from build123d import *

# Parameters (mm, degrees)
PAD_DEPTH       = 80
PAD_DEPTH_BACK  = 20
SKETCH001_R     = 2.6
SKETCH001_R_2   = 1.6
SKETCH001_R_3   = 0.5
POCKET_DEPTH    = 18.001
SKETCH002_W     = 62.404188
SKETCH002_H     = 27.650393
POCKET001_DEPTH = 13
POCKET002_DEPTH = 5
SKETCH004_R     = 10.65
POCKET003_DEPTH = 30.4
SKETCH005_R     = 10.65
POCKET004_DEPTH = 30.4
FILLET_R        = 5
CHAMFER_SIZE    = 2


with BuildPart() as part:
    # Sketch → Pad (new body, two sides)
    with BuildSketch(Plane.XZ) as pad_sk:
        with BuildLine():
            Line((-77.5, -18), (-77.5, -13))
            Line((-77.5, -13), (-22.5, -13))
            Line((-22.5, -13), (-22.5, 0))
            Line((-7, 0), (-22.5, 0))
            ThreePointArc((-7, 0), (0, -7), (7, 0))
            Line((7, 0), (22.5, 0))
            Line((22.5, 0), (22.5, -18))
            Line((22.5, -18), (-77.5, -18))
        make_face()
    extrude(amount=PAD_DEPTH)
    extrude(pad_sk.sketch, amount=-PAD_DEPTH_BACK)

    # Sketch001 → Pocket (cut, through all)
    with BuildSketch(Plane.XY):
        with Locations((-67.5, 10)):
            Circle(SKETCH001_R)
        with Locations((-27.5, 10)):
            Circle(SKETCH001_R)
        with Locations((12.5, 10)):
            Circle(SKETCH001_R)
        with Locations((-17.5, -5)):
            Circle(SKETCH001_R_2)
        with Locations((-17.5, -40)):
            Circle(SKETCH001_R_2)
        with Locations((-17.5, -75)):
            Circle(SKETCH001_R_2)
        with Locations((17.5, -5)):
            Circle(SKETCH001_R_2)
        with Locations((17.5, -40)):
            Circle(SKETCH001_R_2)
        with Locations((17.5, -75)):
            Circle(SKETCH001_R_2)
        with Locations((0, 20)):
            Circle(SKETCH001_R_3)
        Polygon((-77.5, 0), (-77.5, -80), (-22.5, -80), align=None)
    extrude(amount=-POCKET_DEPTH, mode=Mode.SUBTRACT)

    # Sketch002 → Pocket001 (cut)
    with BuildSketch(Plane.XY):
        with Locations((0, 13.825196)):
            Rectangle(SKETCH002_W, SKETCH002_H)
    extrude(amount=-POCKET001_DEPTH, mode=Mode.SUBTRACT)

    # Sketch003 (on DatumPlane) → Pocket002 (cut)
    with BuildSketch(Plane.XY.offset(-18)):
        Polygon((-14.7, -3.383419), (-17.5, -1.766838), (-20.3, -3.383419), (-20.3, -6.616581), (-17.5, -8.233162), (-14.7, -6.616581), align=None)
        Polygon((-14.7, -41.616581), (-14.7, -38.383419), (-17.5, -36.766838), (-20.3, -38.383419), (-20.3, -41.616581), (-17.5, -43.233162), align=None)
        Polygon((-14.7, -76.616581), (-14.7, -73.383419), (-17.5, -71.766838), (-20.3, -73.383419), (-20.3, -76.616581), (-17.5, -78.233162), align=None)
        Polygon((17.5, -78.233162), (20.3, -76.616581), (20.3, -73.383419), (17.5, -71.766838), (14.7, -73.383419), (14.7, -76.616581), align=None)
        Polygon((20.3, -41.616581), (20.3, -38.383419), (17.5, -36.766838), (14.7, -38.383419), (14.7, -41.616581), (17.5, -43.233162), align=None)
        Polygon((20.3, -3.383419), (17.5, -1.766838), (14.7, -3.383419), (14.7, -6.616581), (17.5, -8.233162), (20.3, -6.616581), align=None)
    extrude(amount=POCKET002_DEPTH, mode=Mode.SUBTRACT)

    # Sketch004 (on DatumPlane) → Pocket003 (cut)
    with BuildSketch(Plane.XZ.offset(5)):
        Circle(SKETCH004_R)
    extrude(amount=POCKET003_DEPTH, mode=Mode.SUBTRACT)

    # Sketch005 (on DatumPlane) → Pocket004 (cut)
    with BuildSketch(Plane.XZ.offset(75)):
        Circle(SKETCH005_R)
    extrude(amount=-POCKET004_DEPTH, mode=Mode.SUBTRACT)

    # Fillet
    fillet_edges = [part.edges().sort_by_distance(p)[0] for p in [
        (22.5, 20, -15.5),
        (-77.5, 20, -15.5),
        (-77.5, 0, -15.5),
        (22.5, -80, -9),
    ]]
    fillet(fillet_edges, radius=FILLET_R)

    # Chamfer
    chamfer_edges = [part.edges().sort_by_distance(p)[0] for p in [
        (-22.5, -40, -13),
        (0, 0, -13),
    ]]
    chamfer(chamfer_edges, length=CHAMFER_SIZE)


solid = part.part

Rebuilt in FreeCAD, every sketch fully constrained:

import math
import FreeCAD as App
import Part
import Sketcher
Q = App.Units.Quantity


def edges_at(feature, points):
    """Names of the edges that pass closest to the given points."""
    edges = feature.Shape.Edges
    near = lambda p: min(range(len(edges)), key=lambda i: edges[i].distToShape(Part.Vertex(*p))[0])
    return sorted({f"Edge{near(p) + 1}" for p in points})


def add_polygon(sketch, points):
    """Adds a closed chain of lines whose ends are joined by coincident constraints."""
    first, n = sketch.GeometryCount, len(points)
    for a, b in zip(points, points[1:] + points[:1]):
        sketch.addGeometry(Part.LineSegment(App.Vector(*a, 0), App.Vector(*b, 0)), False)
    for i in range(n):
        sketch.addConstraint(Sketcher.Constraint("Coincident", first + i, 2, first + (i + 1) % n, 1))

doc = App.newDocument("Part")
body = doc.addObject("PartDesign::Body", "Body")

sketch1 = doc.addObject("Sketcher::SketchObject", "Sketch")
body.addObject(sketch1)
sketch1.AttachmentSupport = (doc.XZ_Plane, [""])
sketch1.MapMode = "FlatFace"
sketch1.addGeometry([
    Part.LineSegment(App.Vector(-78, -13, 0), App.Vector(-78, -18, 0)),
    Part.LineSegment(App.Vector(-78, -18, 0), App.Vector(22, -18, 0)),
    Part.LineSegment(App.Vector(22, -18, 0), App.Vector(22, 0, 0)),
    Part.LineSegment(App.Vector(22, 0, 0), App.Vector(7, 0, 0)),
    Part.ArcOfCircle(Part.Circle(App.Vector(0, 0, 0), App.Vector(0, 0, 1), 7), math.radians(180), math.radians(360)),
    Part.LineSegment(App.Vector(-7, 0, 0), App.Vector(-22, 0, 0)),
    Part.LineSegment(App.Vector(-22, 0, 0), App.Vector(-22, -13, 0)),
    Part.LineSegment(App.Vector(-22, -13, 0), App.Vector(-78, -13, 0)),
], False)
sketch1.addConstraint([
    Sketcher.Constraint("Coincident", 0, 2, 1, 1),
    Sketcher.Constraint("Coincident", 1, 2, 2, 1),
    Sketcher.Constraint("Coincident", 2, 2, 3, 1),
    Sketcher.Constraint("Coincident", 3, 2, 4, 2),
    Sketcher.Constraint("Coincident", 4, 1, 5, 1),
    Sketcher.Constraint("Coincident", 5, 2, 6, 1),
    Sketcher.Constraint("Coincident", 6, 2, 7, 1),
    Sketcher.Constraint("Coincident", 7, 2, 0, 1),
    Sketcher.Constraint("Vertical", 0),
    Sketcher.Constraint("Horizontal", 1),
    Sketcher.Constraint("Vertical", 2),
    Sketcher.Constraint("Horizontal", 3),
    Sketcher.Constraint("Horizontal", 5),
    Sketcher.Constraint("Vertical", 6),
    Sketcher.Constraint("Horizontal", 7),
    Sketcher.Constraint("Coincident", 4, 3, -1, 1),
    Sketcher.Constraint("Symmetric", 2, 2, 5, 2, -1, 1),
    Sketcher.Constraint("PointOnObject", 2, 2, -1),
    Sketcher.Constraint("Radius", 4, 7.0),
    Sketcher.Constraint("DistanceX", 1, 1, 1, 2, 100.0),
    Sketcher.Constraint("DistanceX", 7, 2, 7, 1, 55.0),
    Sketcher.Constraint("DistanceY", 0, 2, 0, 1, 5.0),
    Sketcher.Constraint("DistanceY", 2, 1, 2, 2, 18.0),
])
pad1 = doc.addObject("PartDesign::Pad", "Pad")
body.addObject(pad1)
pad1.Profile = sketch1
pad1.Type = "TwoLengths"
pad1.Length = 80
pad1.Length2 = 20

sketch2 = doc.addObject("Sketcher::SketchObject", "Sketch001")
body.addObject(sketch2)
sketch2.AttachmentSupport = (doc.XY_Plane, [""])
sketch2.MapMode = "FlatFace"
sketch2.addGeometry(Part.Circle(App.Vector(-67.5, 10, 0), App.Vector(0, 0, 1), 2.6), False)
sketch2.addGeometry(Part.Circle(App.Vector(-27.5, 10, 0), App.Vector(0, 0, 1), 2.6), False)
sketch2.addGeometry(Part.Circle(App.Vector(12.5, 10, 0), App.Vector(0, 0, 1), 2.6), False)
sketch2.addGeometry(Part.Circle(App.Vector(-17.5, -5, 0), App.Vector(0, 0, 1), 1.6), False)
sketch2.addGeometry(Part.Circle(App.Vector(-17.5, -40, 0), App.Vector(0, 0, 1), 1.6), False)
sketch2.addGeometry(Part.Circle(App.Vector(-17.5, -75, 0), App.Vector(0, 0, 1), 1.6), False)
sketch2.addGeometry(Part.Circle(App.Vector(17.5, -5, 0), App.Vector(0, 0, 1), 1.6), False)
sketch2.addGeometry(Part.Circle(App.Vector(17.5, -40, 0), App.Vector(0, 0, 1), 1.6), False)
sketch2.addGeometry(Part.Circle(App.Vector(17.5, -75, 0), App.Vector(0, 0, 1), 1.6), False)
sketch2.addGeometry(Part.Circle(App.Vector(0, 20, 0), App.Vector(0, 0, 1), 0.5), False)
add_polygon(sketch2, [(-77.5, 0), (-77.5, -80), (-22.5, -80)])
sketch2.addConstraint([
    Sketcher.Constraint("Vertical", 10),
    Sketcher.Constraint("Horizontal", 11),
    Sketcher.Constraint("Equal", 0, 1),
    Sketcher.Constraint("Equal", 1, 2),
    Sketcher.Constraint("Equal", 3, 4),
    Sketcher.Constraint("Equal", 4, 5),
    Sketcher.Constraint("Equal", 5, 6),
    Sketcher.Constraint("Equal", 6, 7),
    Sketcher.Constraint("Equal", 7, 8),
    Sketcher.Constraint("Symmetric", 3, 3, 6, 3, -2),
    Sketcher.Constraint("Symmetric", 4, 3, 7, 3, -2),
    Sketcher.Constraint("Symmetric", 5, 3, 8, 3, -2),
    Sketcher.Constraint("PointOnObject", 9, 3, -2),
    Sketcher.Constraint("PointOnObject", 12, 2, -1),
    Sketcher.Constraint("Horizontal", 0, 3, 1, 3),
    Sketcher.Constraint("Horizontal", 1, 3, 2, 3),
    Sketcher.Constraint("Vertical", 3, 3, 4, 3),
    Sketcher.Constraint("Vertical", 4, 3, 5, 3),
    Sketcher.Constraint("Diameter", 9, 1.0),
    Sketcher.Constraint("Diameter", 0, 5.2),
    Sketcher.Constraint("Diameter", 3, 3.2),
    Sketcher.Constraint("DistanceX", 11, 1, 11, 2, 55.0),
    Sketcher.Constraint("DistanceY", 10, 2, 10, 1, 80.0),
    Sketcher.Constraint("DistanceY", -1, 1, 0, 3, 10.0),
    Sketcher.Constraint("DistanceY", 3, 3, -1, 1, 5.0),
    Sketcher.Constraint("DistanceY", 4, 3, -1, 1, 40.0),
    Sketcher.Constraint("DistanceY", 5, 3, -1, 1, 75.0),
    Sketcher.Constraint("DistanceY", -1, 1, 9, 3, 20.0),
    Sketcher.Constraint("DistanceX", 0, 3, 1, 3, 40.0),
    Sketcher.Constraint("DistanceX", 1, 3, 2, 3, 40.0),
    Sketcher.Constraint("DistanceX", 1, 3, 3, 3, 10.0),
    Sketcher.Constraint("DistanceX", 2, 3, 6, 3, 5.0),
    Sketcher.Constraint("DistanceX", 10, 2, 5, 3, 60.0),
])
pocket1 = doc.addObject("PartDesign::Pocket", "Pocket")
body.addObject(pocket1)
pocket1.Profile = sketch2
pocket1.Type = "ThroughAll"

sketch3 = doc.addObject("Sketcher::SketchObject", "Sketch002")
body.addObject(sketch3)
sketch3.AttachmentSupport = (doc.XY_Plane, [""])
sketch3.MapMode = "FlatFace"
add_polygon(sketch3, [(-31, 28), (-31, 0), (31, 0), (31, 28)])
sketch3.addConstraint([
    Sketcher.Constraint("Vertical", 0),
    Sketcher.Constraint("Horizontal", 1),
    Sketcher.Constraint("Vertical", 2),
    Sketcher.Constraint("Horizontal", 3),
    Sketcher.Constraint("Symmetric", 0, 2, 1, 2, -1, 1),
    Sketcher.Constraint("DistanceX", 1, 1, 1, 2, 62.404188),
    Sketcher.Constraint("DistanceY", 0, 2, 0, 1, 27.650393),
])
pocket2 = doc.addObject("PartDesign::Pocket", "Pocket001")
body.addObject(pocket2)
pocket2.Profile = sketch3
pocket2.Length = 13

sketch4 = doc.addObject("Sketcher::SketchObject", "Sketch003")
body.addObject(sketch4)
sketch4.AttachmentSupport = (doc.XY_Plane, [""])
sketch4.MapMode = "FlatFace"
sketch4.AttachmentOffset = App.Placement(App.Vector(0, 0, -18), App.Rotation())
add_polygon(sketch4, [(-14.7, -3.4), (-17.5, -1.8), (-20.3, -3.4), (-20.3, -6.6), (-17.5, -8.2), (-14.7, -6.6)])
add_polygon(sketch4, [(-14.7, -41.6), (-14.7, -38.4), (-17.5, -36.8), (-20.3, -38.4), (-20.3, -41.6), (-17.5, -43.2)])
add_polygon(sketch4, [(-14.7, -76.6), (-14.7, -73.4), (-17.5, -71.8), (-20.3, -73.4), (-20.3, -76.6), (-17.5, -78.2)])
add_polygon(sketch4, [(17.5, -78.2), (20.3, -76.6), (20.3, -73.4), (17.5, -71.8), (14.7, -73.4), (14.7, -76.6)])
add_polygon(sketch4, [(20.3, -41.6), (20.3, -38.4), (17.5, -36.8), (14.7, -38.4), (14.7, -41.6), (17.5, -43.2)])
add_polygon(sketch4, [(20.3, -3.4), (17.5, -1.8), (14.7, -3.4), (14.7, -6.6), (17.5, -8.2), (20.3, -6.6)])
sketch4.addConstraint([
    Sketcher.Constraint("Vertical", 2),
    Sketcher.Constraint("Vertical", 5),
    Sketcher.Constraint("Vertical", 6),
    Sketcher.Constraint("Vertical", 9),
    Sketcher.Constraint("Vertical", 12),
    Sketcher.Constraint("Vertical", 15),
    Sketcher.Constraint("Vertical", 19),
    Sketcher.Constraint("Vertical", 22),
    Sketcher.Constraint("Vertical", 24),
    Sketcher.Constraint("Vertical", 27),
    Sketcher.Constraint("Vertical", 32),
    Sketcher.Constraint("Vertical", 35),
    Sketcher.Constraint("Symmetric", 15, 2, 18, 2, -2),
    Sketcher.Constraint("Symmetric", 13, 2, 20, 2, -2),
    Sketcher.Constraint("Symmetric", 12, 2, 21, 2, -2),
    Sketcher.Constraint("Symmetric", 16, 2, 23, 2, -2),
    Sketcher.Constraint("Symmetric", 8, 2, 24, 2, -2),
    Sketcher.Constraint("Symmetric", 7, 2, 25, 2, -2),
    Sketcher.Constraint("Symmetric", 6, 2, 26, 2, -2),
    Sketcher.Constraint("Symmetric", 10, 2, 28, 2, -2),
    Sketcher.Constraint("Symmetric", 0, 2, 30, 2, -2),
    Sketcher.Constraint("Symmetric", 5, 2, 31, 2, -2),
    Sketcher.Constraint("Symmetric", 3, 2, 33, 2, -2),
    Sketcher.Constraint("Symmetric", 2, 2, 34, 2, -2),
    Sketcher.Constraint("Parallel", 0, 3),
    Sketcher.Constraint("Parallel", 1, 4),
    Sketcher.Constraint("Parallel", 3, 7),
    Sketcher.Constraint("Parallel", 4, 8),
    Sketcher.Constraint("Parallel", 7, 10),
    Sketcher.Constraint("Parallel", 8, 11),
    Sketcher.Constraint("Parallel", 10, 13),
    Sketcher.Constraint("Parallel", 11, 14),
    Sketcher.Constraint("Parallel", 13, 16),
    Sketcher.Constraint("Parallel", 14, 17),
    Sketcher.Constraint("Parallel", 17, 18),
    Sketcher.Constraint("Parallel", 16, 20),
    Sketcher.Constraint("Parallel", 20, 23),
    Sketcher.Constraint("Parallel", 25, 28),
    Sketcher.Constraint("Parallel", 26, 29),
    Sketcher.Constraint("Parallel", 28, 30),
    Sketcher.Constraint("Parallel", 30, 33),
    Sketcher.Constraint("Horizontal", 2, 2, 4, 2),
    Sketcher.Constraint("Horizontal", 1, 2, 5, 2),
    Sketcher.Constraint("Horizontal", 6, 2, 8, 2),
    Sketcher.Constraint("Horizontal", 9, 2, 11, 2),
    Sketcher.Constraint("Horizontal", 12, 2, 14, 2),
    Sketcher.Constraint("Horizontal", 15, 2, 17, 2),
    Sketcher.Constraint("Vertical", 5, 2, 6, 2),
    Sketcher.Constraint("Vertical", 3, 2, 7, 2),
    Sketcher.Constraint("Vertical", 11, 2, 12, 2),
    Sketcher.Constraint("Vertical", 10, 2, 13, 2),
    Sketcher.Constraint("Equal", 5, 6),
    Sketcher.Constraint("Equal", 9, 12),
    Sketcher.Constraint("Angle", 0, Q("149.999996 deg")),
    Sketcher.Constraint("DistanceY", 6, 2, 5, 2, 35.0),
    Sketcher.Constraint("DistanceY", 12, 2, 6, 2, 35.0),
    Sketcher.Constraint("DistanceX", 17, 2, 18, 2, 35.0),
    Sketcher.Constraint("DistanceX", 1, 2, -1, 1, 20.3),
    Sketcher.Constraint("DistanceY", 6, 1, 6, 2, 3.233162),
    Sketcher.Constraint("DistanceY", 1, 2, -1, 1, 3.383419),
])
pocket3 = doc.addObject("PartDesign::Pocket", "Pocket002")
body.addObject(pocket3)
pocket3.Profile = sketch4
pocket3.Length = 5
pocket3.Reversed = True

sketch5 = doc.addObject("Sketcher::SketchObject", "Sketch004")
body.addObject(sketch5)
sketch5.AttachmentSupport = (doc.XZ_Plane, [""])
sketch5.MapMode = "FlatFace"
sketch5.AttachmentOffset = App.Placement(App.Vector(0, 0, 5), App.Rotation())
sketch5.addGeometry(Part.Circle(App.Vector(0, 0, 0), App.Vector(0, 0, 1), 11), False)
sketch5.addConstraint([
    Sketcher.Constraint("Coincident", 0, 3, -1, 1),
    Sketcher.Constraint("Diameter", 0, 21.3),
])
pocket4 = doc.addObject("PartDesign::Pocket", "Pocket003")
body.addObject(pocket4)
pocket4.Profile = sketch5
pocket4.Length = 30.4
pocket4.Reversed = True

sketch6 = doc.addObject("Sketcher::SketchObject", "Sketch005")
body.addObject(sketch6)
sketch6.AttachmentSupport = (doc.XZ_Plane, [""])
sketch6.MapMode = "FlatFace"
sketch6.AttachmentOffset = App.Placement(App.Vector(0, 0, 75), App.Rotation())
sketch6.addGeometry(Part.Circle(App.Vector(0, 0, 0), App.Vector(0, 0, 1), 11), False)
sketch6.addConstraint([
    Sketcher.Constraint("Coincident", 0, 3, -1, 1),
    Sketcher.Constraint("Diameter", 0, 21.3),
])
pocket5 = doc.addObject("PartDesign::Pocket", "Pocket004")
body.addObject(pocket5)
pocket5.Profile = sketch6
pocket5.Length = 30.4
doc.recompute()

fillet = doc.addObject("PartDesign::Fillet", "Fillet")
body.addObject(fillet)
fillet.Base = (pocket5, edges_at(pocket5, [
    (22.5, 20, -15.5),
    (-77.5, 20, -15.5),
    (-77.5, 0, -15.5),
    (22.5, -80, -9),
]))
fillet.Radius = 5
doc.recompute()

chamfer = doc.addObject("PartDesign::Chamfer", "Chamfer")
body.addObject(chamfer)
chamfer.Base = (fillet, edges_at(fillet, [(-22.5, -40, -13), (0, 0, -13)]))
chamfer.Size = 2

doc.recompute()
